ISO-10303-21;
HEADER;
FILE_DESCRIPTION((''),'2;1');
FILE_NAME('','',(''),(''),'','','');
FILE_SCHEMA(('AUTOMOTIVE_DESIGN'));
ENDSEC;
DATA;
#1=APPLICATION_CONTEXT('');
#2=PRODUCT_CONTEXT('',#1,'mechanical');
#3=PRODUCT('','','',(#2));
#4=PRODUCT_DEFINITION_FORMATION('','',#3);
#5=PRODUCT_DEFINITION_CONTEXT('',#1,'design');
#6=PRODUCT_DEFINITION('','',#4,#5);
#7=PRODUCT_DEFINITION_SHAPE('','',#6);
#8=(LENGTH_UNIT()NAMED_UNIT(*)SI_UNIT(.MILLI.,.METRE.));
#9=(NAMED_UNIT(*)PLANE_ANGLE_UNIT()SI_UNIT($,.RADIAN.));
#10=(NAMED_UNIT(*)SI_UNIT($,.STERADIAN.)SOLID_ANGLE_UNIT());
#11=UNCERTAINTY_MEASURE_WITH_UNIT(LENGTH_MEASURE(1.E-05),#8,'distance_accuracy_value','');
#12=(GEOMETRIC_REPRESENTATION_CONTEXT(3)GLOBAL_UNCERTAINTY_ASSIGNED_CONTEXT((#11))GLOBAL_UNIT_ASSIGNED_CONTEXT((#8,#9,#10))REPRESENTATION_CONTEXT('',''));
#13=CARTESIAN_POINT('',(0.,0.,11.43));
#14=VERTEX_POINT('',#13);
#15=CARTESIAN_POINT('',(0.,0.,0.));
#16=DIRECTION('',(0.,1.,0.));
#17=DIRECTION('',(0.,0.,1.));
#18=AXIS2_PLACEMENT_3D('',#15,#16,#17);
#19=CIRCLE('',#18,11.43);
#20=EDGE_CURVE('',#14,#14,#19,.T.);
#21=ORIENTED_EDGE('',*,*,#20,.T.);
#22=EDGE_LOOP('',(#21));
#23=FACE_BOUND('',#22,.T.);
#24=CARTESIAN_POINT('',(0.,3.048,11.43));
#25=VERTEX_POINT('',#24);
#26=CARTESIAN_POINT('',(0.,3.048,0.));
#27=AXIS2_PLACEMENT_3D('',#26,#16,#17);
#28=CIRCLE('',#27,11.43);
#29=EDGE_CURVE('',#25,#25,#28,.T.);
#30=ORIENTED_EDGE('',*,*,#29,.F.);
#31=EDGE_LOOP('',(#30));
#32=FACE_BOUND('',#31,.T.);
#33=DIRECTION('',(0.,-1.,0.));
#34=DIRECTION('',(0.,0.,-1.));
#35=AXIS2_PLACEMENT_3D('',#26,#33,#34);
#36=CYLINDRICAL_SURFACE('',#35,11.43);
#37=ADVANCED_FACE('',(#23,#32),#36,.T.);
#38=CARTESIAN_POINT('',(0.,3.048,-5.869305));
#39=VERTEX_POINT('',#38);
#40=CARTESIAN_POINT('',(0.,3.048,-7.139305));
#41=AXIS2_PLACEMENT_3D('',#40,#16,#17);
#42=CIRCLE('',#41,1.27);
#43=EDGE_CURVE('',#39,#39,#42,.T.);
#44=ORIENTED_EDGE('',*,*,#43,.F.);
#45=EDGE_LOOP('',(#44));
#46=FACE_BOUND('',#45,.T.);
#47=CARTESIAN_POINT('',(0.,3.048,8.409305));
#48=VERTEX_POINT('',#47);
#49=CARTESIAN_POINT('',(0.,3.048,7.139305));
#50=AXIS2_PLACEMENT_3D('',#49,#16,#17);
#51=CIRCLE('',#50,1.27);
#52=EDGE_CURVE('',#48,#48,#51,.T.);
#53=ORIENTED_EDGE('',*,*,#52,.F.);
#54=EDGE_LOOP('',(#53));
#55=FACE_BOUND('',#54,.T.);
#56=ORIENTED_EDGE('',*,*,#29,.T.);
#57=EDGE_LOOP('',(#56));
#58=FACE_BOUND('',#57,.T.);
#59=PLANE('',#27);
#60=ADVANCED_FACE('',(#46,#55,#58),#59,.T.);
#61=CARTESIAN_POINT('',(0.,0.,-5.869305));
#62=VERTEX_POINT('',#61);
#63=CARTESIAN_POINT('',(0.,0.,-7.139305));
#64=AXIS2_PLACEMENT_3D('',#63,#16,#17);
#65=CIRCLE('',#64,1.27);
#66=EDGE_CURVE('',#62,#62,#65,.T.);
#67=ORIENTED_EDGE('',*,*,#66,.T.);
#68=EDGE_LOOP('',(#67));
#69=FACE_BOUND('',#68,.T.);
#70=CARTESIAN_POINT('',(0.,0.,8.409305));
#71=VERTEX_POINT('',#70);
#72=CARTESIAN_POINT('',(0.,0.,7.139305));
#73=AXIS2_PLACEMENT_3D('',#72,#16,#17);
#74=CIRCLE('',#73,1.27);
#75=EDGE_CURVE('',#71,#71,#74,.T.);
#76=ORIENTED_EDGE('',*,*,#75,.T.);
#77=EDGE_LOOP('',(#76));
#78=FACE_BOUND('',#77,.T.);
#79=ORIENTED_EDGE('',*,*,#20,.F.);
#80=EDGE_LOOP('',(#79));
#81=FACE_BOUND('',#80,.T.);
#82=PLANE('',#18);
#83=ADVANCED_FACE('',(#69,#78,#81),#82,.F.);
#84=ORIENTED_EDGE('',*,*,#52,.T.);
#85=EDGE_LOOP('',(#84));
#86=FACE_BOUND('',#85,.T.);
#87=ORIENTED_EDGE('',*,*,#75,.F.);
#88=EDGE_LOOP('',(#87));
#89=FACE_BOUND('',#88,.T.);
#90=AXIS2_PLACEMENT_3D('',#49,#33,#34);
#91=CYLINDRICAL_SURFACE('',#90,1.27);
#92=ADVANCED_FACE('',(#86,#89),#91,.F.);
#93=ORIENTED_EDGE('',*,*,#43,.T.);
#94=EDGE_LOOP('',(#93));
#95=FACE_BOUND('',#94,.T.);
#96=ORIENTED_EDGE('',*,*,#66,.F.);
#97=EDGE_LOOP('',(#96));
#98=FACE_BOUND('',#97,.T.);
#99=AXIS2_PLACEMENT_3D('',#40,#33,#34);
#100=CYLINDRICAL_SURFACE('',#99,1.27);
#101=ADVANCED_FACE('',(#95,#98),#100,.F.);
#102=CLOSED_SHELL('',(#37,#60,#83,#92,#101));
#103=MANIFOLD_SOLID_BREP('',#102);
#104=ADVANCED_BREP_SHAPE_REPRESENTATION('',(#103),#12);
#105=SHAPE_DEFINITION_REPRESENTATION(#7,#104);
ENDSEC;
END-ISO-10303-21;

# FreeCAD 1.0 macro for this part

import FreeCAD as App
import Part
import Sketcher
Q = App.Units.Quantity

doc = App.newDocument("Part")
params = doc.addObject("Spreadsheet::Sheet", "Params")
for row, (alias, value) in enumerate([
    ("sketch1_diameter", "0.9 in"),
    ("sketch1_diameter2", "0.1 in"),
    ("pad1_length", "0.12 in"),
], start=1):
    params.set(f"A{row}", alias)
    params.set(f"B{row}", "=" + value)
    params.setAlias(f"B{row}", alias)

body = doc.addObject("PartDesign::Body", "Body")

# Sketch on XZ plane
sketch1 = body.newObject("Sketcher::SketchObject", "Sketch")
sketch1.AttachmentSupport = (doc.getObject("XZ_Plane"), [""])
sketch1.MapMode = "FlatFace"
sketch1.addGeometry(Part.Circle(App.Vector(0, 0, 0), App.Vector(0, 0, 1), 11.4), False)
sketch1.addGeometry(Part.Circle(App.Vector(0, 7.1, 0), App.Vector(0, 0, 1), 1.3), False)
sketch1.addGeometry(Part.Circle(App.Vector(0, -7.1, 0), App.Vector(0, 0, 1), 1.3), False)
sketch1.addConstraint(Sketcher.Constraint("Coincident", 0, 3, -1, 1))
sketch1.addConstraint(Sketcher.Constraint("Equal", 1, 2))
sketch1.addConstraint(Sketcher.Constraint("Symmetric", 1, 3, 2, 3, -1, 1))
sketch1.addConstraint(Sketcher.Constraint("PointOnObject", 1, 3, -2))
sketch1.addConstraint(Sketcher.Constraint("Diameter", 0, Q("0.9 in")))
sketch1.addConstraint(Sketcher.Constraint("Diameter", 1, Q("0.1 in")))
sketch1.addConstraint(Sketcher.Constraint("DistanceY", 2, 3, 1, 3, Q("14.27861 mm")))
sketch1.setExpression("Constraints[4]", "Params.sketch1_diameter")
sketch1.setExpression("Constraints[5]", "Params.sketch1_diameter2")
pad1 = body.newObject("PartDesign::Pad", "Pad")
pad1.Profile = sketch1
pad1.setExpression("Length", "Params.pad1_length")
pad1.Reversed = True

doc.recompute()
